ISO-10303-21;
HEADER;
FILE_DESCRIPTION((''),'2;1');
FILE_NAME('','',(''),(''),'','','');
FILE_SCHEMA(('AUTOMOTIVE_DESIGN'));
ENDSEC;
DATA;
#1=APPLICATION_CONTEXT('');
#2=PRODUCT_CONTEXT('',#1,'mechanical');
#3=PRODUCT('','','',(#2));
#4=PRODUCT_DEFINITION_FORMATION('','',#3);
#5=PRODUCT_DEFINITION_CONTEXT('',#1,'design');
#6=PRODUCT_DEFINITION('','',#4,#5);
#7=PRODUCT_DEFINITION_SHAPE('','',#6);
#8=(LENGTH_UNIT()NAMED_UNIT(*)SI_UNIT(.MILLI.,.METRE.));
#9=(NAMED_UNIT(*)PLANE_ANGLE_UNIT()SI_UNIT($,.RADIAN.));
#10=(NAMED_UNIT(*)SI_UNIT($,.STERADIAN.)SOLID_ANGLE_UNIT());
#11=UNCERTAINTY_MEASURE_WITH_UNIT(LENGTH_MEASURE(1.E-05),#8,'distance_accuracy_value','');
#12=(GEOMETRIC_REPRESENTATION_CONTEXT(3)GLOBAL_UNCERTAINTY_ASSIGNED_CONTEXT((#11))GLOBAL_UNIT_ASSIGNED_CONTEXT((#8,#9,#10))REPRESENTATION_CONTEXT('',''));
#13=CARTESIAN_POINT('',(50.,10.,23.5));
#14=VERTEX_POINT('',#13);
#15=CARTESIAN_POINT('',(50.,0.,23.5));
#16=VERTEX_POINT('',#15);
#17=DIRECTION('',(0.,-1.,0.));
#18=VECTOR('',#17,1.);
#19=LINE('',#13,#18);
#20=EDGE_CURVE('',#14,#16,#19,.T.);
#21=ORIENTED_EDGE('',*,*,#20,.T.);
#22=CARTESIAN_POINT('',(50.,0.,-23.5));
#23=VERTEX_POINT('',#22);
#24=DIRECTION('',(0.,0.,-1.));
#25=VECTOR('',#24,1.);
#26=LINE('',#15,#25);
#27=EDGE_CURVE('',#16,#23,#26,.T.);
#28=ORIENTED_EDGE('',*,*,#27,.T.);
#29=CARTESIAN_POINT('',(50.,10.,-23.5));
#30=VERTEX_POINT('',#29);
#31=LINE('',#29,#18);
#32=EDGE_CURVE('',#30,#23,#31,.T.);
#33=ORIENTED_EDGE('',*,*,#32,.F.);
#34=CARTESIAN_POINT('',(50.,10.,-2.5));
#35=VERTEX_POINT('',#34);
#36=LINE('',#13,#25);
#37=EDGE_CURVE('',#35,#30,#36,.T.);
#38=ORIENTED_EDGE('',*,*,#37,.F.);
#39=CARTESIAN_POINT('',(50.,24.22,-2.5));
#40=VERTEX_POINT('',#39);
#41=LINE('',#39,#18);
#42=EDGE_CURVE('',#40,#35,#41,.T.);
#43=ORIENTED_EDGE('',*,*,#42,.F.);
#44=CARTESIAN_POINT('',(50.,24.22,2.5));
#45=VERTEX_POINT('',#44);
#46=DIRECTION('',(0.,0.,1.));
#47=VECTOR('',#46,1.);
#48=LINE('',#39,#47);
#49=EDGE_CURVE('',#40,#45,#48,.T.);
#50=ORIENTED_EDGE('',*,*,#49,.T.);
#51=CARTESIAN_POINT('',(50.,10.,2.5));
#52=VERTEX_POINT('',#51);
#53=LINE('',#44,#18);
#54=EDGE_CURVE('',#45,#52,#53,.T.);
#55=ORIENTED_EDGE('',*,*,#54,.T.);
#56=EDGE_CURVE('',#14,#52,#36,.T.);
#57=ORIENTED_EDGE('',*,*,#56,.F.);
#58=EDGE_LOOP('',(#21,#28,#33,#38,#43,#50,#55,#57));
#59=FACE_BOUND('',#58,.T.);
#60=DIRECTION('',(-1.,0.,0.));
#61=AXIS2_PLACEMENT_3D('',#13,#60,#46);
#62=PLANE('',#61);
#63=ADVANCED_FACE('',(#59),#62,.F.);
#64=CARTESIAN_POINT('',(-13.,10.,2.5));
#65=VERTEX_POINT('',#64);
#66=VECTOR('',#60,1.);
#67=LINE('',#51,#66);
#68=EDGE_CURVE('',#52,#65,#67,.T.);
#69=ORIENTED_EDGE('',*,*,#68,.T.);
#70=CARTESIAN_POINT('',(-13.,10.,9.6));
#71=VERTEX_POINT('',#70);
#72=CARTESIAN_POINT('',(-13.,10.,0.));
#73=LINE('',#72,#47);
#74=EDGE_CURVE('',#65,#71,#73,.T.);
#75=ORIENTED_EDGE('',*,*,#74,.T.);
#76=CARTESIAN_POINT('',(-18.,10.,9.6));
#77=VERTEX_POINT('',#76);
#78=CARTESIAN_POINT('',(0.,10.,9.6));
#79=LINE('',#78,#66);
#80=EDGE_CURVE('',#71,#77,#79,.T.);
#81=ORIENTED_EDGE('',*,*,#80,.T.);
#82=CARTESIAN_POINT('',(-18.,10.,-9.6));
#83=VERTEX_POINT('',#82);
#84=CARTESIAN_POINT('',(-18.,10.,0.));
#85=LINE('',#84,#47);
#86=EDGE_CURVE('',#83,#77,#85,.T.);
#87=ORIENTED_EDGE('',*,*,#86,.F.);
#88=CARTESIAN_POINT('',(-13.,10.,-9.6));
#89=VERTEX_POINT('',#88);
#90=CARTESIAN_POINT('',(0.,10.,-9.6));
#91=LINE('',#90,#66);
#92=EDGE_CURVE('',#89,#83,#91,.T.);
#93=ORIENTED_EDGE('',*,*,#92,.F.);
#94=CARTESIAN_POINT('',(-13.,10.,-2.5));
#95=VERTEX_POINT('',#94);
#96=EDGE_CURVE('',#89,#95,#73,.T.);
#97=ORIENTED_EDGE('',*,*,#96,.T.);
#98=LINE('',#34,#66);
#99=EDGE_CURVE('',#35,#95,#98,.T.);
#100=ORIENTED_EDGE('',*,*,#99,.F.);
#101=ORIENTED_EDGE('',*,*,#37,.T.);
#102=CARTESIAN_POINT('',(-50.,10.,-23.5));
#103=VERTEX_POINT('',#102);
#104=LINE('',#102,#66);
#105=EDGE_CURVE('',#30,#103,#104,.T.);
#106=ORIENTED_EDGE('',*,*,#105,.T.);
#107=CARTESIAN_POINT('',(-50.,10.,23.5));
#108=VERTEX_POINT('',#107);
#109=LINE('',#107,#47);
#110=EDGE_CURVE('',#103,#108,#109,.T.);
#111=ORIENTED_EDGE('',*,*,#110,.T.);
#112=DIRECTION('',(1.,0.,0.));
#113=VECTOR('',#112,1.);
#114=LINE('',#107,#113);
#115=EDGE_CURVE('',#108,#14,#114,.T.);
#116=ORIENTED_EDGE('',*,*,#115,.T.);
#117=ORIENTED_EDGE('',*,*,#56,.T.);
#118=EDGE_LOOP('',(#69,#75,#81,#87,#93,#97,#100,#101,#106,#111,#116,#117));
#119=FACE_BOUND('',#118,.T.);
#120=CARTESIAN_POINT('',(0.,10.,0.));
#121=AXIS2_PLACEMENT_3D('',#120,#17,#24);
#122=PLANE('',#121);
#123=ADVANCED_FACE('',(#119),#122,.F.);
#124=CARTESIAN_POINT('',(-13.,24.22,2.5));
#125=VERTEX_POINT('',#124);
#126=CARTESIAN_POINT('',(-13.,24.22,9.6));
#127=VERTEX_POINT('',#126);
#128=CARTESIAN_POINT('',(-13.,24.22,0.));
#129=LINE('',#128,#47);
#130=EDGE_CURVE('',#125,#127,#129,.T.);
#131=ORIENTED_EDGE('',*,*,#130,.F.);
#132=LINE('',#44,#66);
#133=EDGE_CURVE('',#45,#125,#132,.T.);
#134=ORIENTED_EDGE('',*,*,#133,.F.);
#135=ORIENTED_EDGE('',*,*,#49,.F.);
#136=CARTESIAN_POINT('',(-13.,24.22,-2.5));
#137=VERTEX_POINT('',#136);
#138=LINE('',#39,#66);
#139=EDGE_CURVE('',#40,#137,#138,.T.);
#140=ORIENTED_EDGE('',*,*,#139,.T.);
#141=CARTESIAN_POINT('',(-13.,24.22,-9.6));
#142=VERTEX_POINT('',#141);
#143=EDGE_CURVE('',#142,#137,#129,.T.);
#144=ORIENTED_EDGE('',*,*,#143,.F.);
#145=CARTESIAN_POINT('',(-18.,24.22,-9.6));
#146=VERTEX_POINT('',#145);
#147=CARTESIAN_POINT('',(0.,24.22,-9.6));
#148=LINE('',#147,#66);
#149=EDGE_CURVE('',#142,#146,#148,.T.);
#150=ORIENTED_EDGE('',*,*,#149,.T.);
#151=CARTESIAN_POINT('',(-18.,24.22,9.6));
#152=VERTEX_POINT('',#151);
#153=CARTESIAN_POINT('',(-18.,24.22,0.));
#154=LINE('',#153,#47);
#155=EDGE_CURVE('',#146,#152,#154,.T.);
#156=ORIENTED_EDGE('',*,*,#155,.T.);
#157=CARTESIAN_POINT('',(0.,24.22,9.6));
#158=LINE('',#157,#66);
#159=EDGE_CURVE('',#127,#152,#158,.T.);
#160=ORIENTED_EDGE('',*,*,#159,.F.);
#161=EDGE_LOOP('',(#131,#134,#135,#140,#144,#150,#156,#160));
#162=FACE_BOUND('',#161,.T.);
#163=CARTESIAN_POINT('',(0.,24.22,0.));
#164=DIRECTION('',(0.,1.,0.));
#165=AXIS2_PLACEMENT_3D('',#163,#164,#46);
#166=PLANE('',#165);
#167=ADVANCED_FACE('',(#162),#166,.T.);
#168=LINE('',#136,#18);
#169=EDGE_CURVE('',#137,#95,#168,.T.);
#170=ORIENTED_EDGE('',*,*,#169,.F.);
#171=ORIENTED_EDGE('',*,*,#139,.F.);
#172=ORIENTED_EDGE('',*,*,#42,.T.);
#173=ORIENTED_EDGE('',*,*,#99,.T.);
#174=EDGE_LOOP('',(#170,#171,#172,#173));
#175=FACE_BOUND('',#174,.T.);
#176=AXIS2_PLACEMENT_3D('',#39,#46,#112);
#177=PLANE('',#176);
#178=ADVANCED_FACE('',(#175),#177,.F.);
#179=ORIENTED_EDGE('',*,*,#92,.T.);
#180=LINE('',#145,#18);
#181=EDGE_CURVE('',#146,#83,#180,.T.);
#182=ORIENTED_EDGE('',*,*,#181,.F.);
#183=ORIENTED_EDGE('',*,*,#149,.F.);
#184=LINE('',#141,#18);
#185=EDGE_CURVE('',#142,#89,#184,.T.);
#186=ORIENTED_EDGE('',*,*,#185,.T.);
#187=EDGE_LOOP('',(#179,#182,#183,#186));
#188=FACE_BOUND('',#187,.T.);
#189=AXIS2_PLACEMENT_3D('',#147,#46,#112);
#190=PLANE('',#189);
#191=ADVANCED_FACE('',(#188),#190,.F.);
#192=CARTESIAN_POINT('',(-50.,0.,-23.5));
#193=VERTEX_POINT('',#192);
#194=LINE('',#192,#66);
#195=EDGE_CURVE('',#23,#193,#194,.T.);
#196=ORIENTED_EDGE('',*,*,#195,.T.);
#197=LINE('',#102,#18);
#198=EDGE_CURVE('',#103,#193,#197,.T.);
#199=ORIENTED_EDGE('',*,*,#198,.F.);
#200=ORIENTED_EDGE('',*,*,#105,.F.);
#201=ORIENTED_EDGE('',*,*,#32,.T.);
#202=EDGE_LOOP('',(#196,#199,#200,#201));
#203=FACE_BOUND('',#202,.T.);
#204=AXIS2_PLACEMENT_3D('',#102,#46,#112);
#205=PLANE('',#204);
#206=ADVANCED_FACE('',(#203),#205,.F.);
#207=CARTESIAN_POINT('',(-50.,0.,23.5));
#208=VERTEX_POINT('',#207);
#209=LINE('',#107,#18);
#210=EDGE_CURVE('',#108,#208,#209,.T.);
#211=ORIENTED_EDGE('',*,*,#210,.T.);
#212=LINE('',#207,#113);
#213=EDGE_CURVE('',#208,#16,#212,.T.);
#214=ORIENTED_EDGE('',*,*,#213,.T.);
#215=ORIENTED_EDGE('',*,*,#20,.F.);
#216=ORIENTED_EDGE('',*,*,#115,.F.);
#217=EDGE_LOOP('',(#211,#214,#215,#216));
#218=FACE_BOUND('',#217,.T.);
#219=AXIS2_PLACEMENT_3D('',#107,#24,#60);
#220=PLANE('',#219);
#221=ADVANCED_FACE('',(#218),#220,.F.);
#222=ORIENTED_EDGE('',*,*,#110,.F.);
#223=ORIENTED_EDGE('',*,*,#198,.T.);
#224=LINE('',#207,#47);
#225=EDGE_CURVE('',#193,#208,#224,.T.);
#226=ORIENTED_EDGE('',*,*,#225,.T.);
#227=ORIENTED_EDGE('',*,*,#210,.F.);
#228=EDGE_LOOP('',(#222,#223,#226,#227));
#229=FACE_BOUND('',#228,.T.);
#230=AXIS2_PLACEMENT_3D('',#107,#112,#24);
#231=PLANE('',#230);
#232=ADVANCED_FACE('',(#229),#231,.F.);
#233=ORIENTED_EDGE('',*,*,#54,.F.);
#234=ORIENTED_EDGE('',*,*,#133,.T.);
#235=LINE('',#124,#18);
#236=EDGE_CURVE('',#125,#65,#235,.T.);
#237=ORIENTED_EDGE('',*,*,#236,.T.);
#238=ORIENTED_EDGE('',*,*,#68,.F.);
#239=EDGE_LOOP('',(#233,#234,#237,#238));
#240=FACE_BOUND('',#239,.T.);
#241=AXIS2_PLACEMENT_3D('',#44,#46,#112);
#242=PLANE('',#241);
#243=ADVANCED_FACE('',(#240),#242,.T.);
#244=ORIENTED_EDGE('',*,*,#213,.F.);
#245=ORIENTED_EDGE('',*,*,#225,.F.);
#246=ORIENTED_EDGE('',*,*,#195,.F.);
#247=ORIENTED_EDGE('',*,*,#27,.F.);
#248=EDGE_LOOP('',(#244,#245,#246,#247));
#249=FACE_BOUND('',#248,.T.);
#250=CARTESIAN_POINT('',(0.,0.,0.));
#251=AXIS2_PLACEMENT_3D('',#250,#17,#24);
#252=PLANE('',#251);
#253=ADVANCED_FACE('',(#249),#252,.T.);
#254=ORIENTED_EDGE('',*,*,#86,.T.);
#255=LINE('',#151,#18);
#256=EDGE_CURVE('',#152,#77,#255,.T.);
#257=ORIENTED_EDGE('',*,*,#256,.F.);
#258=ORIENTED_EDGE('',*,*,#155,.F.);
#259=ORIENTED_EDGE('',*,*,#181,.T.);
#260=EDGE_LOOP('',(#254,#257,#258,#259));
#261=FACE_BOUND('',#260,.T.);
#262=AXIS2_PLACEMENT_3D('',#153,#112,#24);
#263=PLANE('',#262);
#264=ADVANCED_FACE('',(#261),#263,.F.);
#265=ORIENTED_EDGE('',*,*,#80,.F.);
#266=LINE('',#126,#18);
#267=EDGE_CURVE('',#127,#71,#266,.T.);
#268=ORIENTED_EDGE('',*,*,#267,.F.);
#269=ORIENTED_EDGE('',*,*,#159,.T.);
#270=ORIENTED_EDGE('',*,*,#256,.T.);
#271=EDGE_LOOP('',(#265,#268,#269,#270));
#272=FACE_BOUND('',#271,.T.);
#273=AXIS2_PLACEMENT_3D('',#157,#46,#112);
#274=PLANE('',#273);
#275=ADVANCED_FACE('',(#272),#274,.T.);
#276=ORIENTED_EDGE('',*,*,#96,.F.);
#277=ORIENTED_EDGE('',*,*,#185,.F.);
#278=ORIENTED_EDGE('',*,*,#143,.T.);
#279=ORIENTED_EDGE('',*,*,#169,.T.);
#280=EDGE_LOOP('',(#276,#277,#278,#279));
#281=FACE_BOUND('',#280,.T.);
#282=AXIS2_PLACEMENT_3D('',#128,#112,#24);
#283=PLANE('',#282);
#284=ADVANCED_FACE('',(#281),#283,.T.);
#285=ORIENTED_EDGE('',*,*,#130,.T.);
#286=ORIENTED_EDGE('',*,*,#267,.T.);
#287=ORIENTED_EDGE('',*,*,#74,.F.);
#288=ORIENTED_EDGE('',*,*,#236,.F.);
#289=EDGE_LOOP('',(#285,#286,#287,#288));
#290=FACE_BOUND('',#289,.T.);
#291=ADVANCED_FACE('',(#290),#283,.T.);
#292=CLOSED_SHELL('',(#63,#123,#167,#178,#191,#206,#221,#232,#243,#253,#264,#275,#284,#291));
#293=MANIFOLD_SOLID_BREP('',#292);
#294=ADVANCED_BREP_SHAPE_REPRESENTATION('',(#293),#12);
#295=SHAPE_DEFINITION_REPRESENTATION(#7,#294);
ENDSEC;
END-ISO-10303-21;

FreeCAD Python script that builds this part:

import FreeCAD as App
import Part
import Sketcher


def add_polygon(sketch, points):
    """Adds a closed chain of lines whose ends are joined by coincident constraints."""
    first, n = sketch.GeometryCount, len(points)
    for a, b in zip(points, points[1:] + points[:1]):
        sketch.addGeometry(Part.LineSegment(App.Vector(*a, 0), App.Vector(*b, 0)), False)
    for i in range(n):
        sketch.addConstraint(Sketcher.Constraint("Coincident", first + i, 2, first + (i + 1) % n, 1))

doc = App.newDocument("Part")
params = doc.addObject("Spreadsheet::Sheet", "Params")
for row, (alias, value) in enumerate([
    ("sketch1_width", "100 mm"),
    ("sketch1_height", "47 mm"),
    ("pad1_length", "10 mm"),
    ("sketch2_width", "63 mm"),
    ("sketch2_width2", "5 mm"),
    ("sketch2_height", "7.1 mm"),
    ("pad2_length", "14.22 mm"),
], start=1):
    params.set(f"A{row}", alias)
    params.set(f"B{row}", "=" + value)
    params.setAlias(f"B{row}", alias)

body = doc.addObject("PartDesign::Body", "Body")

sketch1 = body.newObject("Sketcher::SketchObject", "Sketch")
sketch1.AttachmentSupport = (doc.getObject("XZ_Plane"), [""])
sketch1.MapMode = "FlatFace"
add_polygon(sketch1, [(-50, -23.5), (-50, 23.5), (50, 23.5), (50, -23.5)])
sketch1.addConstraint([
    Sketcher.Constraint("Vertical", 0),
    Sketcher.Constraint("Horizontal", 1),
    Sketcher.Constraint("Vertical", 2),
    Sketcher.Constraint("Horizontal", 3),
    Sketcher.Constraint("Symmetric", 0, 2, 2, 2, -1, 1),
    Sketcher.Constraint("DistanceX", 1, 1, 1, 2, 100.0),
    Sketcher.Constraint("DistanceY", 0, 1, 0, 2, 47.0),
])
sketch1.setExpression("Constraints[9]", "Params.sketch1_width")
sketch1.setExpression("Constraints[10]", "Params.sketch1_height")
pad1 = body.newObject("PartDesign::Pad", "Pad")
pad1.Profile = sketch1
pad1.setExpression("Length", "Params.pad1_length")
pad1.Reversed = True

sketch2 = body.newObject("Sketcher::SketchObject", "Sketch001")
sketch2.AttachmentSupport = (doc.getObject("XZ_Plane"), [""])
sketch2.MapMode = "FlatFace"
sketch2.AttachmentOffset = App.Placement(App.Vector(0, 0, -10), App.Rotation())
add_polygon(sketch2, [(50, 2.5), (50, -2.5), (-13, -2.5), (-13, -9.6), (-18, -9.6), (-18, 9.6), (-13, 9.6), (-13, 2.5)])
sketch2.addConstraint([
    Sketcher.Constraint("Vertical", 0),
    Sketcher.Constraint("Horizontal", 1),
    Sketcher.Constraint("Vertical", 2),
    Sketcher.Constraint("Horizontal", 3),
    Sketcher.Constraint("Vertical", 4),
    Sketcher.Constraint("Horizontal", 5),
    Sketcher.Constraint("Vertical", 6),
    Sketcher.Constraint("Horizontal", 7),
    Sketcher.Constraint("Symmetric", 2, 2, 5, 2, -1),
    Sketcher.Constraint("Equal", 5, 0),
    Sketcher.Constraint("Equal", 2, 6),
    Sketcher.Constraint("DistanceX", 1, 2, 1, 1, 63.0),
    Sketcher.Constraint("DistanceX", 3, 2, 3, 1, 5.0),
    Sketcher.Constraint("DistanceY", 2, 2, 2, 1, 7.1),
    Sketcher.Constraint("DistanceX", -1, 1, 0, 2, 50.0),
])
sketch2.setExpression("Constraints[19]", "Params.sketch2_width")
sketch2.setExpression("Constraints[20]", "Params.sketch2_width2")
sketch2.setExpression("Constraints[21]", "Params.sketch2_height")
pad2 = body.newObject("PartDesign::Pad", "Pad001")
pad2.Profile = sketch2
pad2.setExpression("Length", "Params.pad2_length")
pad2.Reversed = True

doc.recompute()
